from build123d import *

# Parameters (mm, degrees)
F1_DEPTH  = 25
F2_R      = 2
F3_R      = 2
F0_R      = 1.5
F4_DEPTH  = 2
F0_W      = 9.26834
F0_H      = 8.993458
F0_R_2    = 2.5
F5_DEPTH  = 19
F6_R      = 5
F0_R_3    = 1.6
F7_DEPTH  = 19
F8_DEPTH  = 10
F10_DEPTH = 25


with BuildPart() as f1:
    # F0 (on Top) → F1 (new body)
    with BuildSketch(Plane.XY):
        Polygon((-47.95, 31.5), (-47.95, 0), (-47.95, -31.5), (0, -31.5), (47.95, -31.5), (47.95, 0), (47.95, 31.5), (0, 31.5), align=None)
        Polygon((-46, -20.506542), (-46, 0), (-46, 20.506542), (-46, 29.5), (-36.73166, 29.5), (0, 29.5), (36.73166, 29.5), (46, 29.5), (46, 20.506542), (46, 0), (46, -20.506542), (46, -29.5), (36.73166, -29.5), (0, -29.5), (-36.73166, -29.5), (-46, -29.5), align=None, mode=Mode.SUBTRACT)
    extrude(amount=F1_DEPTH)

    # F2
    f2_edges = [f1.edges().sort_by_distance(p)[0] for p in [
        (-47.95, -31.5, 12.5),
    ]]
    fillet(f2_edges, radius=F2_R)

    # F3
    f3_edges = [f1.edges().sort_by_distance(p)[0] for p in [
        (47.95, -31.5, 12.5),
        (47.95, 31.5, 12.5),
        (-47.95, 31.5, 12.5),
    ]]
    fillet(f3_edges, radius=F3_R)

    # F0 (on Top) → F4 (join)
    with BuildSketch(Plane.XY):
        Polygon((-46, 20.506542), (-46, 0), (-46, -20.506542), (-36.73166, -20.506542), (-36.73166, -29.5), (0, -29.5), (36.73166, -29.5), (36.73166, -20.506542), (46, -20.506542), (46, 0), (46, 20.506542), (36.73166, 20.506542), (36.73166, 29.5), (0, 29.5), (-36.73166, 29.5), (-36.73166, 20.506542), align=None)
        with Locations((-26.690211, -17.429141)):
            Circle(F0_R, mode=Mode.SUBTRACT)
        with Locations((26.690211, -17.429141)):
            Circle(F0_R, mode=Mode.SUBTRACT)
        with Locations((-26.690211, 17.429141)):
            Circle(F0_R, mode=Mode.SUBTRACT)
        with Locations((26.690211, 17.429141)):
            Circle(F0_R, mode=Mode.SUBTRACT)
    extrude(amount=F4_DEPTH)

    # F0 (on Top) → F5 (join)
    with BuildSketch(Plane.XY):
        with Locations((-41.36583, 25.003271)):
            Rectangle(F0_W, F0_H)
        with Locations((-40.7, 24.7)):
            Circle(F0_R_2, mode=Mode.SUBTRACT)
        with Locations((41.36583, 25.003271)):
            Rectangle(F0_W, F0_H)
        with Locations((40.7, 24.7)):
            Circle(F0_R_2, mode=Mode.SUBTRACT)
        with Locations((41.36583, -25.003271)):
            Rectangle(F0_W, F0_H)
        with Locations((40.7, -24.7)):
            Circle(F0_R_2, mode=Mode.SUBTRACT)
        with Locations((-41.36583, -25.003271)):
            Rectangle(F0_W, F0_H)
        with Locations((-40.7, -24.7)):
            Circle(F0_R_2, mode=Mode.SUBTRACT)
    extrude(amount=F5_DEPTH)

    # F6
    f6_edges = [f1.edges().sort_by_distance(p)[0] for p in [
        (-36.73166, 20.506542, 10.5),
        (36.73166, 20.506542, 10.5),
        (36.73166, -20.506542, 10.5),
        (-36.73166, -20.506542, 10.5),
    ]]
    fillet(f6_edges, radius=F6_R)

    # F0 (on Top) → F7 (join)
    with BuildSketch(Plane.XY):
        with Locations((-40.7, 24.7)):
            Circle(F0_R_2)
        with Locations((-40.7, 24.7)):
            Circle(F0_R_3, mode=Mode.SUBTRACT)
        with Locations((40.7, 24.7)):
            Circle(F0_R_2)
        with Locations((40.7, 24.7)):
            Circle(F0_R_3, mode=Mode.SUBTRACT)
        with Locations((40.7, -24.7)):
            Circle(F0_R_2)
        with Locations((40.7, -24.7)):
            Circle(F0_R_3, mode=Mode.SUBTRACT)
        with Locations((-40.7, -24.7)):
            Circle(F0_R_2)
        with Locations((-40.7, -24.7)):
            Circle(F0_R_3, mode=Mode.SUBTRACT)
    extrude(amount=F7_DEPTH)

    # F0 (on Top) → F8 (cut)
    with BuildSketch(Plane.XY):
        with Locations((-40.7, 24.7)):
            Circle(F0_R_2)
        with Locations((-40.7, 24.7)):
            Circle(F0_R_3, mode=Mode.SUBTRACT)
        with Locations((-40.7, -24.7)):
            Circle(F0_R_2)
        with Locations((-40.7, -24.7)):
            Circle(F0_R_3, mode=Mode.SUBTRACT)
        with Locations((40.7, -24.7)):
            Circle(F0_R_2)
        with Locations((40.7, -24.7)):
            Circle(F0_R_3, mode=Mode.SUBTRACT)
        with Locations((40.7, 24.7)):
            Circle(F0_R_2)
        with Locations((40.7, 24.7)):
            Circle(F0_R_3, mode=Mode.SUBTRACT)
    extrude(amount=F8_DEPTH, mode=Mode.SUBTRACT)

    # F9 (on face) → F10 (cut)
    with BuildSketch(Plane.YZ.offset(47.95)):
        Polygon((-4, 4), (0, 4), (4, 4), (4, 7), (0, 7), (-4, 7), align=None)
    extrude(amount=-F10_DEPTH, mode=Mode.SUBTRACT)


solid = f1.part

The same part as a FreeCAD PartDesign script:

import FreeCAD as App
import Part
import Sketcher

V = App.Vector
Q = App.Units.Quantity


def edges_at(feature, points):
    """Names of the edges that pass closest to the given points."""
    edges = feature.Shape.Edges
    near = lambda p: min(range(len(edges)), key=lambda i: edges[i].distToShape(Part.Vertex(*p))[0])
    return sorted({f"Edge{near(p) + 1}" for p in points})

doc = App.newDocument("Part")
body = doc.addObject("PartDesign::Body", "Body")

# Sketch on XY plane
sketch1 = body.newObject("Sketcher::SketchObject", "Sketch")
sketch1.AttachmentSupport = (doc.getObject("XY_Plane"), [""])
sketch1.MapMode = "FlatFace"
sketch1.addGeometry([
    Part.LineSegment(V(-48, 32, 0), V(-48, -32, 0)),  # 0
    Part.LineSegment(V(-48, -32, 0), V(48, -32, 0)),  # 1
    Part.LineSegment(V(48, -32, 0), V(48, 32, 0)),  # 2
    Part.LineSegment(V(48, 32, 0), V(-48, 32, 0)),  # 3
    Part.LineSegment(V(-46, -30, 0), V(-46, 30, 0)),  # 4
    Part.LineSegment(V(-46, 30, 0), V(46, 30, 0)),  # 5
    Part.LineSegment(V(46, 30, 0), V(46, -30, 0)),  # 6
    Part.LineSegment(V(46, -30, 0), V(-46, -30, 0)),  # 7
], False)
sketch1.addConstraint([
    Sketcher.Constraint("Coincident", 0, 2, 1, 1),
    Sketcher.Constraint("Coincident", 1, 2, 2, 1),
    Sketcher.Constraint("Coincident", 2, 2, 3, 1),
    Sketcher.Constraint("Coincident", 3, 2, 0, 1),
    Sketcher.Constraint("Coincident", 4, 2, 5, 1),
    Sketcher.Constraint("Coincident", 5, 2, 6, 1),
    Sketcher.Constraint("Coincident", 6, 2, 7, 1),
    Sketcher.Constraint("Coincident", 7, 2, 4, 1),
    Sketcher.Constraint("Vertical", 0),
    Sketcher.Constraint("Horizontal", 1),
    Sketcher.Constraint("Vertical", 2),
    Sketcher.Constraint("Horizontal", 3),
    Sketcher.Constraint("Vertical", 4),
    Sketcher.Constraint("Horizontal", 5),
    Sketcher.Constraint("Vertical", 6),
    Sketcher.Constraint("Horizontal", 7),
    Sketcher.Constraint("Symmetric", 0, 2, 2, 2, -1, 1),
    Sketcher.Constraint("Symmetric", 4, 2, 6, 2, -1, 1),
    Sketcher.Constraint("DistanceX", 5, 1, 5, 2, Q("92 mm")),
    Sketcher.Constraint("DistanceY", 0, 2, 0, 1, Q("63 mm")),
    Sketcher.Constraint("DistanceY", 4, 1, 4, 2, Q("59 mm")),
    Sketcher.Constraint("DistanceX", 1, 1, 1, 2, Q("95.9 mm")),
])
pad1 = body.newObject("PartDesign::Pad", "Pad")
pad1.Profile = sketch1
pad1.Length = 25
doc.recompute()

fillet = body.newObject("PartDesign::Fillet", "Fillet")
fillet.Base = (pad1, edges_at(pad1, [(-47.95, -31.5, 12.5)]))
fillet.Radius = 2
doc.recompute()

fillet2 = body.newObject("PartDesign::Fillet", "Fillet001")
fillet2.Base = (fillet, edges_at(fillet, [(47.95, -31.5, 12.5), (47.95, 31.5, 12.5), (-47.95, 31.5, 12.5)]))
fillet2.Radius = 2

# Sketch on XY plane
sketch2 = body.newObject("Sketcher::SketchObject", "Sketch001")
sketch2.AttachmentSupport = (doc.getObject("XY_Plane"), [""])
sketch2.MapMode = "FlatFace"
sketch2.addGeometry([
    Part.LineSegment(V(-46, 20.5, 0), V(-46, -20.5, 0)),  # 0
    Part.LineSegment(V(-46, -20.5, 0), V(-36.7, -20.5, 0)),  # 1
    Part.LineSegment(V(-36.7, -20.5, 0), V(-36.7, -29.5, 0)),  # 2
    Part.LineSegment(V(-36.7, -29.5, 0), V(36.7, -29.5, 0)),  # 3
    Part.LineSegment(V(36.7, -29.5, 0), V(36.7, -20.5, 0)),  # 4
    Part.LineSegment(V(36.7, -20.5, 0), V(46, -20.5, 0)),  # 5
    Part.LineSegment(V(46, -20.5, 0), V(46, 20.5, 0)),  # 6
    Part.LineSegment(V(46, 20.5, 0), V(36.7, 20.5, 0)),  # 7
    Part.LineSegment(V(36.7, 20.5, 0), V(36.7, 29.5, 0)),  # 8
    Part.LineSegment(V(36.7, 29.5, 0), V(-36.7, 29.5, 0)),  # 9
    Part.LineSegment(V(-36.7, 29.5, 0), V(-36.7, 20.5, 0)),  # 10
    Part.LineSegment(V(-36.7, 20.5, 0), V(-46, 20.5, 0)),  # 11
    Part.Circle(V(-26.7, -17.4, 0), V(0, 0, 1), 1.5),  # 12
    Part.Circle(V(26.7, -17.4, 0), V(0, 0, 1), 1.5),  # 13
    Part.Circle(V(-26.7, 17.4, 0), V(0, 0, 1), 1.5),  # 14
    Part.Circle(V(26.7, 17.4, 0), V(0, 0, 1), 1.5),  # 15
], False)
sketch2.addConstraint([
    Sketcher.Constraint("Coincident", 0, 2, 1, 1),
    Sketcher.Constraint("Coincident", 1, 2, 2, 1),
    Sketcher.Constraint("Coincident", 2, 2, 3, 1),
    Sketcher.Constraint("Coincident", 3, 2, 4, 1),
    Sketcher.Constraint("Coincident", 4, 2, 5, 1),
    Sketcher.Constraint("Coincident", 5, 2, 6, 1),
    Sketcher.Constraint("Coincident", 6, 2, 7, 1),
    Sketcher.Constraint("Coincident", 7, 2, 8, 1),
    Sketcher.Constraint("Coincident", 8, 2, 9, 1),
    Sketcher.Constraint("Coincident", 9, 2, 10, 1),
    Sketcher.Constraint("Coincident", 10, 2, 11, 1),
    Sketcher.Constraint("Coincident", 11, 2, 0, 1),
    Sketcher.Constraint("Vertical", 0),
    Sketcher.Constraint("Horizontal", 1),
    Sketcher.Constraint("Vertical", 2),
    Sketcher.Constraint("Horizontal", 3),
    Sketcher.Constraint("Vertical", 4),
    Sketcher.Constraint("Horizontal", 5),
    Sketcher.Constraint("Vertical", 6),
    Sketcher.Constraint("Horizontal", 7),
    Sketcher.Constraint("Vertical", 8),
    Sketcher.Constraint("Horizontal", 9),
    Sketcher.Constraint("Vertical", 10),
    Sketcher.Constraint("Horizontal", 11),
    Sketcher.Constraint("Equal", 12, 13),
    Sketcher.Constraint("Equal", 13, 14),
    Sketcher.Constraint("Equal", 14, 15),
    Sketcher.Constraint("Symmetric", 13, 3, 14, 3, -1, 1),
    Sketcher.Constraint("Symmetric", 12, 3, 15, 3, -1, 1),
    Sketcher.Constraint("Symmetric", 0, 2, 6, 2, -1, 1),
    Sketcher.Constraint("Symmetric", 2, 2, 8, 2, -1, 1),
    Sketcher.Constraint("Symmetric", 4, 2, 10, 2, -1, 1),
    Sketcher.Constraint("Symmetric", 12, 3, 13, 3, -2),
    Sketcher.Constraint("Symmetric", 1, 2, 4, 2, -2),
    Sketcher.Constraint("Diameter", 12, Q("3 mm")),
    Sketcher.Constraint("DistanceX", 0, 2, -1, 1, Q("46 mm")),
    Sketcher.Constraint("DistanceY", 2, 2, 9, 2, Q("59 mm")),
    Sketcher.Constraint("DistanceX", 1, 1, 1, 2, Q("9.26834 mm")),
    Sketcher.Constraint("DistanceY", 0, 2, 12, 3, Q("3.077401 mm")),
    Sketcher.Constraint("DistanceY", 0, 2, 0, 1, Q("41.013084 mm")),
    Sketcher.Constraint("DistanceX", 12, 3, -1, 1, Q("26.690211 mm")),
])
pad2 = body.newObject("PartDesign::Pad", "Pad001")
pad2.Profile = sketch2
pad2.Length = 2

# Sketch on XY plane
sketch3 = body.newObject("Sketcher::SketchObject", "Sketch002")
sketch3.AttachmentSupport = (doc.getObject("XY_Plane"), [""])
sketch3.MapMode = "FlatFace"
sketch3.addGeometry([
    Part.LineSegment(V(-46, 29.5, 0), V(-46, 20.5, 0)),  # 0
    Part.LineSegment(V(-46, 20.5, 0), V(-36.7, 20.5, 0)),  # 1
    Part.LineSegment(V(-36.7, 20.5, 0), V(-36.7, 29.5, 0)),  # 2
    Part.LineSegment(V(-36.7, 29.5, 0), V(-46, 29.5, 0)),  # 3
    Part.Circle(V(-40.7, 24.7, 0), V(0, 0, 1), 2.5),  # 4
    Part.LineSegment(V(36.7, 29.5, 0), V(36.7, 20.5, 0)),  # 5
    Part.LineSegment(V(36.7, 20.5, 0), V(46, 20.5, 0)),  # 6
    Part.LineSegment(V(46, 20.5, 0), V(46, 29.5, 0)),  # 7
    Part.LineSegment(V(46, 29.5, 0), V(36.7, 29.5, 0)),  # 8
    Part.Circle(V(40.7, 24.7, 0), V(0, 0, 1), 2.5),  # 9
    Part.LineSegment(V(36.7, -20.5, 0), V(36.7, -29.5, 0)),  # 10
    Part.LineSegment(V(36.7, -29.5, 0), V(46, -29.5, 0)),  # 11
    Part.LineSegment(V(46, -29.5, 0), V(46, -20.5, 0)),  # 12
    Part.LineSegment(V(46, -20.5, 0), V(36.7, -20.5, 0)),  # 13
    Part.Circle(V(40.7, -24.7, 0), V(0, 0, 1), 2.5),  # 14
    Part.LineSegment(V(-46, -20.5, 0), V(-46, -29.5, 0)),  # 15
    Part.LineSegment(V(-46, -29.5, 0), V(-36.7, -29.5, 0)),  # 16
    Part.LineSegment(V(-36.7, -29.5, 0), V(-36.7, -20.5, 0)),  # 17
    Part.LineSegment(V(-36.7, -20.5, 0), V(-46, -20.5, 0)),  # 18
    Part.Circle(V(-40.7, -24.7, 0), V(0, 0, 1), 2.5),  # 19
], False)
sketch3.addConstraint([
    Sketcher.Constraint("Coincident", 0, 2, 1, 1),
    Sketcher.Constraint("Coincident", 1, 2, 2, 1),
    Sketcher.Constraint("Coincident", 2, 2, 3, 1),
    Sketcher.Constraint("Coincident", 3, 2, 0, 1),
    Sketcher.Constraint("Coincident", 5, 2, 6, 1),
    Sketcher.Constraint("Coincident", 6, 2, 7, 1),
    Sketcher.Constraint("Coincident", 7, 2, 8, 1),
    Sketcher.Constraint("Coincident", 8, 2, 5, 1),
    Sketcher.Constraint("Coincident", 10, 2, 11, 1),
    Sketcher.Constraint("Coincident", 11, 2, 12, 1),
    Sketcher.Constraint("Coincident", 12, 2, 13, 1),
    Sketcher.Constraint("Coincident", 13, 2, 10, 1),
    Sketcher.Constraint("Coincident", 15, 2, 16, 1),
    Sketcher.Constraint("Coincident", 16, 2, 17, 1),
    Sketcher.Constraint("Coincident", 17, 2, 18, 1),
    Sketcher.Constraint("Coincident", 18, 2, 15, 1),
    Sketcher.Constraint("Vertical", 0),
    Sketcher.Constraint("Horizontal", 1),
    Sketcher.Constraint("Vertical", 2),
    Sketcher.Constraint("Horizontal", 3),
    Sketcher.Constraint("Vertical", 5),
    Sketcher.Constraint("Horizontal", 6),
    Sketcher.Constraint("Vertical", 7),
    Sketcher.Constraint("Horizontal", 8),
    Sketcher.Constraint("Vertical", 10),
    Sketcher.Constraint("Horizontal", 11),
    Sketcher.Constraint("Vertical", 12),
    Sketcher.Constraint("Horizontal", 13),
    Sketcher.Constraint("Vertical", 15),
    Sketcher.Constraint("Horizontal", 16),
    Sketcher.Constraint("Vertical", 17),
    Sketcher.Constraint("Horizontal", 18),
    Sketcher.Constraint("Equal", 4, 9),
    Sketcher.Constraint("Equal", 9, 14),
    Sketcher.Constraint("Equal", 14, 19),
    Sketcher.Constraint("Symmetric", 4, 3, 14, 3, -1, 1),
    Sketcher.Constraint("Symmetric", 9, 3, 19, 3, -1, 1),
    Sketcher.Constraint("Symmetric", 2, 2, 10, 2, -1, 1),
    Sketcher.Constraint("Symmetric", 0, 2, 12, 2, -1, 1),
    Sketcher.Constraint("Symmetric", 7, 2, 15, 2, -1, 1),
    Sketcher.Constraint("Symmetric", 5, 2, 17, 2, -1, 1),
    Sketcher.Constraint("Symmetric", 4, 3, 9, 3, -2),
    Sketcher.Constraint("Symmetric", 1, 2, 5, 2, -2),
    Sketcher.Constraint("Symmetric", 3, 2, 7, 2, -2),
    Sketcher.Constraint("Diameter", 4, Q("5 mm")),
    Sketcher.Constraint("DistanceX", 0, 2, -1, 1, Q("46 mm")),
    Sketcher.Constraint("DistanceY", 10, 2, 8, 2, Q("59 mm")),
    Sketcher.Constraint("DistanceX", 4, 3, -1, 1, Q("40.7 mm")),
    Sketcher.Constraint("DistanceY", -1, 1, 4, 3, Q("24.7 mm")),
    Sketcher.Constraint("DistanceX", 1, 1, 1, 2, Q("9.26834 mm")),
    Sketcher.Constraint("DistanceY", 0, 2, 0, 1, Q("8.993458 mm")),
])
pad3 = body.newObject("PartDesign::Pad", "Pad002")
pad3.Profile = sketch3
pad3.Length = 19
doc.recompute()

fillet3 = body.newObject("PartDesign::Fillet", "Fillet002")
fillet3.Base = (pad3, edges_at(pad3, [
    (-36.732, 20.507, 10.5),
    (36.732, 20.507, 10.5),
    (36.732, -20.507, 10.5),
    (-36.732, -20.507, 10.5),
]))
fillet3.Radius = 5

# Sketch on XY plane
sketch4 = body.newObject("Sketcher::SketchObject", "Sketch003")
sketch4.AttachmentSupport = (doc.getObject("XY_Plane"), [""])
sketch4.MapMode = "FlatFace"
sketch4.addGeometry([
    Part.Circle(V(-40.7, 24.7, 0), V(0, 0, 1), 2.5),  # 0
    Part.Circle(V(-40.7, 24.7, 0), V(0, 0, 1), 1.6),  # 1
    Part.Circle(V(40.7, 24.7, 0), V(0, 0, 1), 2.5),  # 2
    Part.Circle(V(40.7, 24.7, 0), V(0, 0, 1), 1.6),  # 3
    Part.Circle(V(40.7, -24.7, 0), V(0, 0, 1), 2.5),  # 4
    Part.Circle(V(40.7, -24.7, 0), V(0, 0, 1), 1.6),  # 5
    Part.Circle(V(-40.7, -24.7, 0), V(0, 0, 1), 2.5),  # 6
    Part.Circle(V(-40.7, -24.7, 0), V(0, 0, 1), 1.6),  # 7
], False)
sketch4.addConstraint([
    Sketcher.Constraint("Coincident", 1, 3, 0, 3),
    Sketcher.Constraint("Coincident", 3, 3, 2, 3),
    Sketcher.Constraint("Coincident", 5, 3, 4, 3),
    Sketcher.Constraint("Coincident", 7, 3, 6, 3),
    Sketcher.Constraint("Equal", 0, 2),
    Sketcher.Constraint("Equal", 1, 3),
    Sketcher.Constraint("Equal", 2, 4),
    Sketcher.Constraint("Equal", 3, 5),
    Sketcher.Constraint("Equal", 4, 6),
    Sketcher.Constraint("Equal", 5, 7),
    Sketcher.Constraint("Symmetric", 0, 3, 4, 3, -1, 1),
    Sketcher.Constraint("Symmetric", 2, 3, 6, 3, -1, 1),
    Sketcher.Constraint("Symmetric", 0, 3, 2, 3, -2),
    Sketcher.Constraint("Diameter", 0, Q("5 mm")),
    Sketcher.Constraint("Diameter", 1, Q("3.2 mm")),
    Sketcher.Constraint("DistanceX", 0, 3, -1, 1, Q("40.7 mm")),
    Sketcher.Constraint("DistanceY", -1, 1, 0, 3, Q("24.7 mm")),
])
pad4 = body.newObject("PartDesign::Pad", "Pad003")
pad4.Profile = sketch4
pad4.Length = 19

# Sketch on XY plane
sketch5 = body.newObject("Sketcher::SketchObject", "Sketch004")
sketch5.AttachmentSupport = (doc.getObject("XY_Plane"), [""])
sketch5.MapMode = "FlatFace"
sketch5.addGeometry([
    Part.Circle(V(-40.7, 24.7, 0), V(0, 0, 1), 2.5),  # 0
    Part.Circle(V(-40.7, 24.7, 0), V(0, 0, 1), 1.6),  # 1
    Part.Circle(V(-40.7, -24.7, 0), V(0, 0, 1), 2.5),  # 2
    Part.Circle(V(-40.7, -24.7, 0), V(0, 0, 1), 1.6),  # 3
    Part.Circle(V(40.7, -24.7, 0), V(0, 0, 1), 2.5),  # 4
    Part.Circle(V(40.7, -24.7, 0), V(0, 0, 1), 1.6),  # 5
    Part.Circle(V(40.7, 24.7, 0), V(0, 0, 1), 2.5),  # 6
    Part.Circle(V(40.7, 24.7, 0), V(0, 0, 1), 1.6),  # 7
], False)
sketch5.addConstraint([
    Sketcher.Constraint("Coincident", 1, 3, 0, 3),
    Sketcher.Constraint("Coincident", 3, 3, 2, 3),
    Sketcher.Constraint("Coincident", 5, 3, 4, 3),
    Sketcher.Constraint("Coincident", 7, 3, 6, 3),
    Sketcher.Constraint("Equal", 0, 2),
    Sketcher.Constraint("Equal", 1, 3),
    Sketcher.Constraint("Equal", 2, 4),
    Sketcher.Constraint("Equal", 3, 5),
    Sketcher.Constraint("Equal", 4, 6),
    Sketcher.Constraint("Equal", 5, 7),
    Sketcher.Constraint("Symmetric", 0, 3, 4, 3, -1, 1),
    Sketcher.Constraint("Symmetric", 2, 3, 6, 3, -1, 1),
    Sketcher.Constraint("Symmetric", 2, 3, 4, 3, -2),
    Sketcher.Constraint("Diameter", 0, Q("5 mm")),
    Sketcher.Constraint("Diameter", 1, Q("3.2 mm")),
    Sketcher.Constraint("DistanceX", 0, 3, -1, 1, Q("40.7 mm")),
    Sketcher.Constraint("DistanceY", -1, 1, 0, 3, Q("24.7 mm")),
])
pocket1 = body.newObject("PartDesign::Pocket", "Pocket")
pocket1.Profile = sketch5
pocket1.Length = 10
pocket1.Reversed = True

# Sketch on YZ plane
sketch6 = body.newObject("Sketcher::SketchObject", "Sketch005")
sketch6.AttachmentSupport = (doc.getObject("YZ_Plane"), [""])
sketch6.MapMode = "FlatFace"
sketch6.AttachmentOffset = App.Placement(V(0, 0, 47.95), App.Rotation())
sketch6.addGeometry([
    Part.LineSegment(V(-4, 4, 0), V(4, 4, 0)),
    Part.LineSegment(V(4, 4, 0), V(4, 7, 0)),
    Part.LineSegment(V(4, 7, 0), V(-4, 7, 0)),
    Part.LineSegment(V(-4, 7, 0), V(-4, 4, 0)),
], False)
sketch6.addConstraint([
    Sketcher.Constraint("Coincident", 0, 2, 1, 1),
    Sketcher.Constraint("Coincident", 1, 2, 2, 1),
    Sketcher.Constraint("Coincident", 2, 2, 3, 1),
    Sketcher.Constraint("Coincident", 3, 2, 0, 1),
    Sketcher.Constraint("Horizontal", 0),
    Sketcher.Constraint("Vertical", 1),
    Sketcher.Constraint("Horizontal", 2),
    Sketcher.Constraint("Vertical", 3),
    Sketcher.Constraint("DistanceX", 0, 1, 0, 2, Q("8 mm")),
    Sketcher.Constraint("DistanceY", 1, 1, 1, 2, Q("3 mm")),
    Sketcher.Constraint("DistanceX", -1, 1, 0, 2, Q("4 mm")),
    Sketcher.Constraint("DistanceY", -1, 1, 0, 2, Q("4 mm")),
])
pocket2 = body.newObject("PartDesign::Pocket", "Pocket001")
pocket2.Profile = sketch6
pocket2.Length = 25

doc.recompute()
